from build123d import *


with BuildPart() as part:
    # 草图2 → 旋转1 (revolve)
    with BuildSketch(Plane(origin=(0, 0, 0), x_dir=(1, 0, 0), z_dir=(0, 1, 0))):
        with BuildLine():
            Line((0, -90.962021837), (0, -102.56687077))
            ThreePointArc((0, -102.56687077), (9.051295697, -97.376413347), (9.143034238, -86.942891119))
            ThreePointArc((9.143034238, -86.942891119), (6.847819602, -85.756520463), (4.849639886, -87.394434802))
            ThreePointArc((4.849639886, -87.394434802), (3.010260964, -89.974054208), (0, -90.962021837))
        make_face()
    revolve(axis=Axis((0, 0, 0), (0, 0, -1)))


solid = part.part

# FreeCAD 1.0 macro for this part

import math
import FreeCAD as App
import Part
import Sketcher

V = App.Vector
Q = App.Units.Quantity

doc = App.newDocument("Part")
params = doc.addObject("Spreadsheet::Sheet", "Params")
for row, (alias, value) in enumerate([
    ("sketch1_radius", "0.2 in"),
    ("revolution_angle", "360 deg"),
], start=1):
    params.set(f"A{row}", alias)
    params.set(f"B{row}", "=" + value)
    params.setAlias(f"B{row}", alias)

body = doc.addObject("PartDesign::Body", "Body")

sketch1 = body.newObject("Sketcher::SketchObject", "Sketch")
sketch1.AttachmentSupport = (doc.getObject("XZ_Plane"), [""])
sketch1.MapMode = "FlatFace"
sketch1.addGeometry([
    Part.LineSegment(V(0, 91, 0), V(0, 102.6, 0)),
    Part.ArcOfCircle(Part.Circle(V(0, 92.1, 0), V(0, 0, 1), 10.5), math.radians(-29), math.radians(90)),
    Part.ArcOfCircle(Part.Circle(V(7.1, 88.1, 0), V(0, 0, 1), 2.4), math.radians(-163), math.radians(-29)),
    Part.ArcOfCircle(Part.Circle(V(0, 85.9, 0), V(0, 0, 1), 5.1), math.radians(17), math.radians(90)),
], False)
sketch1.addConstraint([
    Sketcher.Constraint("Coincident", 0, 2, 1, 2),
    Sketcher.Constraint("Tangent", 1, 1, 2, 2),
    Sketcher.Constraint("Tangent", 2, 1, 3, 1),
    Sketcher.Constraint("Coincident", 3, 2, 0, 1),
    Sketcher.Constraint("Vertical", 0),
    Sketcher.Constraint("PointOnObject", 1, 3, -2),
    Sketcher.Constraint("PointOnObject", 3, 3, -2),
    Sketcher.Constraint("PointOnObject", 0, 2, -2),
    Sketcher.Constraint("Radius", 3, Q("0.2 in")),
    Sketcher.Constraint("Radius", 1, Q("10.487207 mm")),
    Sketcher.Constraint("Radius", 2, Q("2.350637 mm")),
    Sketcher.Constraint("DistanceY", 0, 1, 0, 2, Q("11.604849 mm")),
    Sketcher.Constraint("DistanceY", -1, 1, 3, 3, Q("85.882022 mm")),
])
sketch1.setExpression("Constraints[8]", "Params.sketch1_radius")
revolution = body.newObject("PartDesign::Revolution", "Revolution")
revolution.Profile = sketch1
revolution.ReferenceAxis = (sketch1, ["V_Axis"])
revolution.setExpression("Angle", "Params.revolution_angle")

doc.recompute()
